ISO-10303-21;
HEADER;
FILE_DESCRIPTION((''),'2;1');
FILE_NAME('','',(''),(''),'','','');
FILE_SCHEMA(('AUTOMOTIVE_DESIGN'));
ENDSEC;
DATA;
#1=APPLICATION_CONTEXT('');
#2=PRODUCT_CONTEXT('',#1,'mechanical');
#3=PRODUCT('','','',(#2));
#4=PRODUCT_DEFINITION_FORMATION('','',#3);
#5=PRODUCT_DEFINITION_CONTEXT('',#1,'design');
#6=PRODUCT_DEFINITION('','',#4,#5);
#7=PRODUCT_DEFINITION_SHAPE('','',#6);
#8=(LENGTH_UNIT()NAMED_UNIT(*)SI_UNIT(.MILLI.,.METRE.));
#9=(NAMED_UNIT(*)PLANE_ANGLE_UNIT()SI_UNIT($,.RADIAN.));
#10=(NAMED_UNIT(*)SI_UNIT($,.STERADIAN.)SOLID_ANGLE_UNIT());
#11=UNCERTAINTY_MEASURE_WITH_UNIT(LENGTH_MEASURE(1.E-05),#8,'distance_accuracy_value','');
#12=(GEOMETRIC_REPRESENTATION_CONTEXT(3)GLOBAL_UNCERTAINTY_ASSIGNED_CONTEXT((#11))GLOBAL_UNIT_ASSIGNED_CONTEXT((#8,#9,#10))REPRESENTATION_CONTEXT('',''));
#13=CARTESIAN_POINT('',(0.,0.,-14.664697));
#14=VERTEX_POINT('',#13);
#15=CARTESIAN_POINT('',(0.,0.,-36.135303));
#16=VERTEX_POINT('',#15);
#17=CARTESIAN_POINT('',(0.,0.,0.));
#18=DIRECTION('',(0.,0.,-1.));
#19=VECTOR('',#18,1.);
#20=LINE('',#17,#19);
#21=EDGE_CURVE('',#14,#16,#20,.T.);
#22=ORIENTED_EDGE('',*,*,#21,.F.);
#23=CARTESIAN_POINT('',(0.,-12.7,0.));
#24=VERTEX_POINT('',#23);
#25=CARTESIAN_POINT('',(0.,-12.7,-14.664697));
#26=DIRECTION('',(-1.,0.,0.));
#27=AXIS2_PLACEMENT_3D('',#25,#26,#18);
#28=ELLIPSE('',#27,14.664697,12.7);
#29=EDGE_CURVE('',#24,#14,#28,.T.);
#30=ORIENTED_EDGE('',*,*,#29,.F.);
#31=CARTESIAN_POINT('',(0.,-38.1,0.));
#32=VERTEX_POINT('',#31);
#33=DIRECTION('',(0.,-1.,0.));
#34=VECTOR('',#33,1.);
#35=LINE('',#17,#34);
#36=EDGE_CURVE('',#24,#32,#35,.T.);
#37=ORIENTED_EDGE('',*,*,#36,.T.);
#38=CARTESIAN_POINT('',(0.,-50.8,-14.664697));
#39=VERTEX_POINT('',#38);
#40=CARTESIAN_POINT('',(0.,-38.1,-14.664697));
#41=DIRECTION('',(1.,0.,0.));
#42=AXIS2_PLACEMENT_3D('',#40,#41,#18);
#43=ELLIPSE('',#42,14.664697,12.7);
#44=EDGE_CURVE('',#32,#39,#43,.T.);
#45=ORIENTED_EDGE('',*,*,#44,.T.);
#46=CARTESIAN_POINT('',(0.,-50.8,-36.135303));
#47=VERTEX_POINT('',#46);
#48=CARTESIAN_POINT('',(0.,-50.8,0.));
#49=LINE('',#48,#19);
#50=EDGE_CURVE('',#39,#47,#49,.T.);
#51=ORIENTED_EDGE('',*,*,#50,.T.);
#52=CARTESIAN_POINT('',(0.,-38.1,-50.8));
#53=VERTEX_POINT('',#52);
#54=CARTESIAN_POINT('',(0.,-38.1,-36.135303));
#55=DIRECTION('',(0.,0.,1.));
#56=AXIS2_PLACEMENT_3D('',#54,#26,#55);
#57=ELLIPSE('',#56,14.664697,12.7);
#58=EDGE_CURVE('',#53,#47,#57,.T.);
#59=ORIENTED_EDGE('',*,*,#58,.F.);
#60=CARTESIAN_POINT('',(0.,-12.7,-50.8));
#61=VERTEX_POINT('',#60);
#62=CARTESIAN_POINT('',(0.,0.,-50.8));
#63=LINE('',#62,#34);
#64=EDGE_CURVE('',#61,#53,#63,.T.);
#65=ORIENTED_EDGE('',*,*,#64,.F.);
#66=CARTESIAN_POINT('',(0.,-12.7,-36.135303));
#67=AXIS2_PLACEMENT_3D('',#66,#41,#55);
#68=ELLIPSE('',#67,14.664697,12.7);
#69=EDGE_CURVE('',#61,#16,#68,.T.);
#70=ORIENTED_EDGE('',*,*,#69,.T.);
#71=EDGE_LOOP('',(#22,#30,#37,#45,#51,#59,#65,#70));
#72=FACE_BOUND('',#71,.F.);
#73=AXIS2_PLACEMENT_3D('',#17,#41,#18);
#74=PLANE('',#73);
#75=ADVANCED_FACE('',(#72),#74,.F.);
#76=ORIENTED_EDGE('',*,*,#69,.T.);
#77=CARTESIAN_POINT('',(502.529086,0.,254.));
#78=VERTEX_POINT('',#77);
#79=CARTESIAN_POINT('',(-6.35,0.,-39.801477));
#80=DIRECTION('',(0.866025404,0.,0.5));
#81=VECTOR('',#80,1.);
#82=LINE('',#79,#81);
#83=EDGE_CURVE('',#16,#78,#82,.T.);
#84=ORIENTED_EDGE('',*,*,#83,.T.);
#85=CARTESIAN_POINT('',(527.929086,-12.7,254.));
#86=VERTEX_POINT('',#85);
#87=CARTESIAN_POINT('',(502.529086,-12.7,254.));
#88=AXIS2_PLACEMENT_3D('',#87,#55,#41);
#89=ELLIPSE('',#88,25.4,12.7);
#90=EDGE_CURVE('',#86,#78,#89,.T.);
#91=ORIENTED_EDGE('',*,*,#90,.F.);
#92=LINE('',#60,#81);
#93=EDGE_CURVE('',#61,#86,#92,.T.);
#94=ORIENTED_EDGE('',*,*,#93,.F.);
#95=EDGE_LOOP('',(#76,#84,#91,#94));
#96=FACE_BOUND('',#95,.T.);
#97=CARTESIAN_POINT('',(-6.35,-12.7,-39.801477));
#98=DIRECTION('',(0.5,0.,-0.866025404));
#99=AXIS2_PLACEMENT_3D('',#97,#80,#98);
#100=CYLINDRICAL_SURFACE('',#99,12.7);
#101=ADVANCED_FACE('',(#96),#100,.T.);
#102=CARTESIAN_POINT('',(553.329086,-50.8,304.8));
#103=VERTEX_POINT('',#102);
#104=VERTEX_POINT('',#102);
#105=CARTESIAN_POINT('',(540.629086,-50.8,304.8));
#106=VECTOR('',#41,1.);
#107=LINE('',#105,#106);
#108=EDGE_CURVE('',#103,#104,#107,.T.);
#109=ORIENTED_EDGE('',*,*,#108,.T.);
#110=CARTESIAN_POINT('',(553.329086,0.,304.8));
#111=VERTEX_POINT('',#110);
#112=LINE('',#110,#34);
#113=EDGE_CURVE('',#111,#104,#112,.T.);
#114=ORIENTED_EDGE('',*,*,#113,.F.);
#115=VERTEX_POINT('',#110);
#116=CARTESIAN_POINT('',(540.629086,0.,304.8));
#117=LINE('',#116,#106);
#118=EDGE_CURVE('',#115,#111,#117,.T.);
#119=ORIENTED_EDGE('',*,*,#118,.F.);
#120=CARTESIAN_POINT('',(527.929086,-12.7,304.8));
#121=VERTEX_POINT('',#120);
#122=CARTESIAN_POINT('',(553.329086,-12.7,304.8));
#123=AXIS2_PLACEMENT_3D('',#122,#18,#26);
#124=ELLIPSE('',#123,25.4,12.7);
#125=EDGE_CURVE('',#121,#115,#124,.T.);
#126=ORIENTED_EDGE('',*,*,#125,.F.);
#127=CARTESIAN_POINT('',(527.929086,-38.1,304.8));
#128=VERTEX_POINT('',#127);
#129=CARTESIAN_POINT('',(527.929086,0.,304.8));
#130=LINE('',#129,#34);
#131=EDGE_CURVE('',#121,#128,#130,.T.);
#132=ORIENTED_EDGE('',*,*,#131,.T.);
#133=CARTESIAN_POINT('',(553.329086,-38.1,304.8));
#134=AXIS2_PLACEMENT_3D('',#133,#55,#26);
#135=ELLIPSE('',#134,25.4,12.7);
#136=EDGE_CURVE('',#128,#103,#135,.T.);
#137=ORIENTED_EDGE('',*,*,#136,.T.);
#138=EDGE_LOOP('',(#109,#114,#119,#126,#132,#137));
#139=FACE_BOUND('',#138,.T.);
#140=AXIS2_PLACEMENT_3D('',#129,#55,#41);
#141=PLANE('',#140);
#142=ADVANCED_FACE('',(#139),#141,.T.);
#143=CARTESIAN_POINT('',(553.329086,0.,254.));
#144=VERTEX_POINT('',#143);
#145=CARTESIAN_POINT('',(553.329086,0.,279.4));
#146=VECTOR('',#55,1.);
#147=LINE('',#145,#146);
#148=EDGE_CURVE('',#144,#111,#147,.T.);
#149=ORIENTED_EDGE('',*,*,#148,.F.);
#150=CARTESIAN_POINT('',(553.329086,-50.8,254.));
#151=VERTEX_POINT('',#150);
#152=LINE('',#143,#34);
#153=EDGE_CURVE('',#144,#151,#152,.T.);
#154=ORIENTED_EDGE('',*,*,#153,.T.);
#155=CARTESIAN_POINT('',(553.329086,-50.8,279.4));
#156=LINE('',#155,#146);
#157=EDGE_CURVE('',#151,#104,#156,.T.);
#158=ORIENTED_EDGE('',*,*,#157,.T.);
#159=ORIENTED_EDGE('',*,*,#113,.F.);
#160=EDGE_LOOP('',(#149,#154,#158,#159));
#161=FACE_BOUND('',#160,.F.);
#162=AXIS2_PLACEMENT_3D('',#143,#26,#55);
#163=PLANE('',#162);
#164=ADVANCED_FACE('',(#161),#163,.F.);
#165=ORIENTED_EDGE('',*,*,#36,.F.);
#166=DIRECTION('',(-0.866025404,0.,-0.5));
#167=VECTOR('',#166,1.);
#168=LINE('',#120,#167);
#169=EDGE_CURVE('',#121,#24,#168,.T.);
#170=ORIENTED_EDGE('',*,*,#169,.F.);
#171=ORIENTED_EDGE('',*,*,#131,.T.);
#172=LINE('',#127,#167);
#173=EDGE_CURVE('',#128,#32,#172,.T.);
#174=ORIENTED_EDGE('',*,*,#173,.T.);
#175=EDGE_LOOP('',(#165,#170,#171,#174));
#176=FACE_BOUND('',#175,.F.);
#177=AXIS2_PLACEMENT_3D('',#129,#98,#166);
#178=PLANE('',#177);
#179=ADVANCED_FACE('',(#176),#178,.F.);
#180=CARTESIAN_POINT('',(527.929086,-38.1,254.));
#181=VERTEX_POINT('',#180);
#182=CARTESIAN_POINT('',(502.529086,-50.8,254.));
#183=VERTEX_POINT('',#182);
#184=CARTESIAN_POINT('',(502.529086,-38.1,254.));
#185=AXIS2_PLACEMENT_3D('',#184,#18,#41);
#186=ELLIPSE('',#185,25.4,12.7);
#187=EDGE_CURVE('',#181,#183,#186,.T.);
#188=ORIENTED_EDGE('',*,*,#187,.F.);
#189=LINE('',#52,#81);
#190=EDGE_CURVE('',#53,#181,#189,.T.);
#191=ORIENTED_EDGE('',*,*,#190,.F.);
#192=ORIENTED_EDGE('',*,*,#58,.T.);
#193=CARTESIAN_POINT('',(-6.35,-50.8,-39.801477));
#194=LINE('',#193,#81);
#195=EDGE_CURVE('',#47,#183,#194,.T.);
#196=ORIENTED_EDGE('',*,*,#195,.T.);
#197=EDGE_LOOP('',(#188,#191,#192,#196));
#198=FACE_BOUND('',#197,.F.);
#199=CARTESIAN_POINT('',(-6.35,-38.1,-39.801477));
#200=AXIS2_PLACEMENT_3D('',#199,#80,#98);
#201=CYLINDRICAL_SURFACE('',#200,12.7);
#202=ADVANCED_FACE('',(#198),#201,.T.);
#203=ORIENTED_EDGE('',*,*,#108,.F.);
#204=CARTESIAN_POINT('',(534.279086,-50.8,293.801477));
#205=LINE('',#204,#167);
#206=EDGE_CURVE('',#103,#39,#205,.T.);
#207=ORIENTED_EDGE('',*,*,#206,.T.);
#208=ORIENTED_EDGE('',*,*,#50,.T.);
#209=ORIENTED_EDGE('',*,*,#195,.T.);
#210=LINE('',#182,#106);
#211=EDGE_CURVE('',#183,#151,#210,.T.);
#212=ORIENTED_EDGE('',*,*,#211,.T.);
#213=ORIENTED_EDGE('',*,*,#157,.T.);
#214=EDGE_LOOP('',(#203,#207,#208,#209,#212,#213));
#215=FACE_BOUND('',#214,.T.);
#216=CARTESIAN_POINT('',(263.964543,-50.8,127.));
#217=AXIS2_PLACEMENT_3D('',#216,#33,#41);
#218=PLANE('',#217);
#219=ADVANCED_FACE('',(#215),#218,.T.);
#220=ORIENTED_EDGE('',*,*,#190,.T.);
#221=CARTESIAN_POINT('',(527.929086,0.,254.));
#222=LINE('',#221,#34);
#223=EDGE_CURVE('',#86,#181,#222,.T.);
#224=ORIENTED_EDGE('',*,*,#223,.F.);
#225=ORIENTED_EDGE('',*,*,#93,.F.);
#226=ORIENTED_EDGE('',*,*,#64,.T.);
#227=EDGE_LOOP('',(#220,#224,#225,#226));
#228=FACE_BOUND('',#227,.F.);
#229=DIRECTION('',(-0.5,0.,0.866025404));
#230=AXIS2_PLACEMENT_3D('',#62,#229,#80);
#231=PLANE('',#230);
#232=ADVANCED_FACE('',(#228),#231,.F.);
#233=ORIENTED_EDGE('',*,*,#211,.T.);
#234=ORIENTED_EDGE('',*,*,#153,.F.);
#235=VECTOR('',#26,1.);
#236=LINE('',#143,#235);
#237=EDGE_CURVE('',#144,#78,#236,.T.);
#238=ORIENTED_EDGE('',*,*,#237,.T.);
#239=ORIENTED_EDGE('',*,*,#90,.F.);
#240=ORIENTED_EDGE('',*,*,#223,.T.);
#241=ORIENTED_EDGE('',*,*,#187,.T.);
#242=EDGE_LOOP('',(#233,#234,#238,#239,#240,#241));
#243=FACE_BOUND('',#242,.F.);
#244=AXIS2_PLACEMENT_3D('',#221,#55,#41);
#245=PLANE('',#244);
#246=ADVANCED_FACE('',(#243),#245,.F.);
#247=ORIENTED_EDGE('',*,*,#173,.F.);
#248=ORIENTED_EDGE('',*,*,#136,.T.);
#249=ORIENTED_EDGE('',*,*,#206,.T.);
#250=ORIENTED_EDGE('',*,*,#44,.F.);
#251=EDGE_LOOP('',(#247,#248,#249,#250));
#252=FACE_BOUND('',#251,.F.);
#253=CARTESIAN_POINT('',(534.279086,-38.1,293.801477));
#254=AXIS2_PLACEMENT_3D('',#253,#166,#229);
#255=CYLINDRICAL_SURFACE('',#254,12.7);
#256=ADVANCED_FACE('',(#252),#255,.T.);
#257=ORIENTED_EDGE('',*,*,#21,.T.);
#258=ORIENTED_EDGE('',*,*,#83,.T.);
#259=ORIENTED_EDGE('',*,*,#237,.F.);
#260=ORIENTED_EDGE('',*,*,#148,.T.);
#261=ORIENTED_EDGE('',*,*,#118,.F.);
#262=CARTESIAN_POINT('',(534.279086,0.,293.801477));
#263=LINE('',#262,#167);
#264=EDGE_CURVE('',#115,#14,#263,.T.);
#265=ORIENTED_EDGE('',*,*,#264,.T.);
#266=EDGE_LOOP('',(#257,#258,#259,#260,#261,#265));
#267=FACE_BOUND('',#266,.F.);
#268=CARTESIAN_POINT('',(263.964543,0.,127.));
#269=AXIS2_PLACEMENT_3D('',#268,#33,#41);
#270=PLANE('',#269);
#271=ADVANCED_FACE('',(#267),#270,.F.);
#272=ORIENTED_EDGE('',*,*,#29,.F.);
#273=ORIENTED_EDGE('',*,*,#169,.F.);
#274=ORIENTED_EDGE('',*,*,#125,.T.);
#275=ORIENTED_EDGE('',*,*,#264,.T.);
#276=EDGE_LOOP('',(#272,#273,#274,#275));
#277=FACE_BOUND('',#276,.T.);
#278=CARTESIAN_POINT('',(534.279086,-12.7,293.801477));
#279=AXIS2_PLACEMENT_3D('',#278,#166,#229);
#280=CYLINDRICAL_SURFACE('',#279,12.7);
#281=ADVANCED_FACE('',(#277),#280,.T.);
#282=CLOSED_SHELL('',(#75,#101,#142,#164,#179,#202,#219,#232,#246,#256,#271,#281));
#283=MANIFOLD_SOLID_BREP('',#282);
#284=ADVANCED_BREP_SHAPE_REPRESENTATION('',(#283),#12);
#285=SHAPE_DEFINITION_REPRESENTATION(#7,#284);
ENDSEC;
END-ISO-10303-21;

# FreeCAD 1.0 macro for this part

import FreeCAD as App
import Part
import Sketcher
Q = App.Units.Quantity


def edges_at(feature, points):
    """Names of the edges that pass closest to the given points."""
    edges = feature.Shape.Edges
    near = lambda p: min(range(len(edges)), key=lambda i: edges[i].distToShape(Part.Vertex(*p))[0])
    return sorted({f"Edge{near(p) + 1}" for p in points})

doc = App.newDocument("Part")
body = doc.addObject("PartDesign::Body", "Body")

# Sketch on XZ plane
sketch1 = doc.addObject("Sketcher::SketchObject", "Sketch")
body.addObject(sketch1)
sketch1.AttachmentSupport = (doc.XZ_Plane, [""])
sketch1.MapMode = "FlatFace"
sketch1.addGeometry([
    Part.LineSegment(App.Vector(528, 305, 0), App.Vector(0, 0, 0)),  # 0
    Part.LineSegment(App.Vector(0, 0, 0), App.Vector(0, -51, 0)),  # 1
    Part.LineSegment(App.Vector(0, -51, 0), App.Vector(528, 254, 0)),  # 2
    Part.LineSegment(App.Vector(528, 254, 0), App.Vector(553, 254, 0)),  # 3
    Part.LineSegment(App.Vector(553, 254, 0), App.Vector(553, 305, 0)),  # 4
    Part.LineSegment(App.Vector(553, 305, 0), App.Vector(528, 305, 0)),  # 5
], False)
sketch1.addConstraint([
    Sketcher.Constraint("Coincident", 0, 2, 1, 1),
    Sketcher.Constraint("Coincident", 1, 2, 2, 1),
    Sketcher.Constraint("Coincident", 2, 2, 3, 1),
    Sketcher.Constraint("Coincident", 3, 2, 4, 1),
    Sketcher.Constraint("Coincident", 4, 2, 5, 1),
    Sketcher.Constraint("Coincident", 5, 2, 0, 1),
    Sketcher.Constraint("Vertical", 1),
    Sketcher.Constraint("Horizontal", 3),
    Sketcher.Constraint("Vertical", 4),
    Sketcher.Constraint("Horizontal", 5),
    Sketcher.Constraint("Coincident", 0, 2, -1, 1),
    Sketcher.Constraint("Parallel", 0, 2),
    Sketcher.Constraint("Vertical", 2, 2, 5, 2),
    Sketcher.Constraint("DistanceX", 3, 1, 3, 2, Q("1 in")),
    Sketcher.Constraint("DistanceY", 1, 2, 1, 1, Q("2 in")),
    Sketcher.Constraint("Distance", 0, Q("24 in")),
    Sketcher.Constraint("DistanceY", -1, 1, 2, 2, Q("10 in")),
])
pad1 = doc.addObject("PartDesign::Pad", "Pad")
body.addObject(pad1)
pad1.Profile = sketch1
pad1.Length = Q("2 in")
doc.recompute()

fillet = doc.addObject("PartDesign::Fillet", "Fillet")
body.addObject(fillet)
fillet.Base = (pad1, edges_at(pad1, [
    (263.965, -50.8, 152.4),
    (263.965, -50.8, 101.6),
    (263.965, 0, 152.4),
    (263.965, 0, 101.6),
]))
fillet.Radius = Q("0.5 in")

doc.recompute()
